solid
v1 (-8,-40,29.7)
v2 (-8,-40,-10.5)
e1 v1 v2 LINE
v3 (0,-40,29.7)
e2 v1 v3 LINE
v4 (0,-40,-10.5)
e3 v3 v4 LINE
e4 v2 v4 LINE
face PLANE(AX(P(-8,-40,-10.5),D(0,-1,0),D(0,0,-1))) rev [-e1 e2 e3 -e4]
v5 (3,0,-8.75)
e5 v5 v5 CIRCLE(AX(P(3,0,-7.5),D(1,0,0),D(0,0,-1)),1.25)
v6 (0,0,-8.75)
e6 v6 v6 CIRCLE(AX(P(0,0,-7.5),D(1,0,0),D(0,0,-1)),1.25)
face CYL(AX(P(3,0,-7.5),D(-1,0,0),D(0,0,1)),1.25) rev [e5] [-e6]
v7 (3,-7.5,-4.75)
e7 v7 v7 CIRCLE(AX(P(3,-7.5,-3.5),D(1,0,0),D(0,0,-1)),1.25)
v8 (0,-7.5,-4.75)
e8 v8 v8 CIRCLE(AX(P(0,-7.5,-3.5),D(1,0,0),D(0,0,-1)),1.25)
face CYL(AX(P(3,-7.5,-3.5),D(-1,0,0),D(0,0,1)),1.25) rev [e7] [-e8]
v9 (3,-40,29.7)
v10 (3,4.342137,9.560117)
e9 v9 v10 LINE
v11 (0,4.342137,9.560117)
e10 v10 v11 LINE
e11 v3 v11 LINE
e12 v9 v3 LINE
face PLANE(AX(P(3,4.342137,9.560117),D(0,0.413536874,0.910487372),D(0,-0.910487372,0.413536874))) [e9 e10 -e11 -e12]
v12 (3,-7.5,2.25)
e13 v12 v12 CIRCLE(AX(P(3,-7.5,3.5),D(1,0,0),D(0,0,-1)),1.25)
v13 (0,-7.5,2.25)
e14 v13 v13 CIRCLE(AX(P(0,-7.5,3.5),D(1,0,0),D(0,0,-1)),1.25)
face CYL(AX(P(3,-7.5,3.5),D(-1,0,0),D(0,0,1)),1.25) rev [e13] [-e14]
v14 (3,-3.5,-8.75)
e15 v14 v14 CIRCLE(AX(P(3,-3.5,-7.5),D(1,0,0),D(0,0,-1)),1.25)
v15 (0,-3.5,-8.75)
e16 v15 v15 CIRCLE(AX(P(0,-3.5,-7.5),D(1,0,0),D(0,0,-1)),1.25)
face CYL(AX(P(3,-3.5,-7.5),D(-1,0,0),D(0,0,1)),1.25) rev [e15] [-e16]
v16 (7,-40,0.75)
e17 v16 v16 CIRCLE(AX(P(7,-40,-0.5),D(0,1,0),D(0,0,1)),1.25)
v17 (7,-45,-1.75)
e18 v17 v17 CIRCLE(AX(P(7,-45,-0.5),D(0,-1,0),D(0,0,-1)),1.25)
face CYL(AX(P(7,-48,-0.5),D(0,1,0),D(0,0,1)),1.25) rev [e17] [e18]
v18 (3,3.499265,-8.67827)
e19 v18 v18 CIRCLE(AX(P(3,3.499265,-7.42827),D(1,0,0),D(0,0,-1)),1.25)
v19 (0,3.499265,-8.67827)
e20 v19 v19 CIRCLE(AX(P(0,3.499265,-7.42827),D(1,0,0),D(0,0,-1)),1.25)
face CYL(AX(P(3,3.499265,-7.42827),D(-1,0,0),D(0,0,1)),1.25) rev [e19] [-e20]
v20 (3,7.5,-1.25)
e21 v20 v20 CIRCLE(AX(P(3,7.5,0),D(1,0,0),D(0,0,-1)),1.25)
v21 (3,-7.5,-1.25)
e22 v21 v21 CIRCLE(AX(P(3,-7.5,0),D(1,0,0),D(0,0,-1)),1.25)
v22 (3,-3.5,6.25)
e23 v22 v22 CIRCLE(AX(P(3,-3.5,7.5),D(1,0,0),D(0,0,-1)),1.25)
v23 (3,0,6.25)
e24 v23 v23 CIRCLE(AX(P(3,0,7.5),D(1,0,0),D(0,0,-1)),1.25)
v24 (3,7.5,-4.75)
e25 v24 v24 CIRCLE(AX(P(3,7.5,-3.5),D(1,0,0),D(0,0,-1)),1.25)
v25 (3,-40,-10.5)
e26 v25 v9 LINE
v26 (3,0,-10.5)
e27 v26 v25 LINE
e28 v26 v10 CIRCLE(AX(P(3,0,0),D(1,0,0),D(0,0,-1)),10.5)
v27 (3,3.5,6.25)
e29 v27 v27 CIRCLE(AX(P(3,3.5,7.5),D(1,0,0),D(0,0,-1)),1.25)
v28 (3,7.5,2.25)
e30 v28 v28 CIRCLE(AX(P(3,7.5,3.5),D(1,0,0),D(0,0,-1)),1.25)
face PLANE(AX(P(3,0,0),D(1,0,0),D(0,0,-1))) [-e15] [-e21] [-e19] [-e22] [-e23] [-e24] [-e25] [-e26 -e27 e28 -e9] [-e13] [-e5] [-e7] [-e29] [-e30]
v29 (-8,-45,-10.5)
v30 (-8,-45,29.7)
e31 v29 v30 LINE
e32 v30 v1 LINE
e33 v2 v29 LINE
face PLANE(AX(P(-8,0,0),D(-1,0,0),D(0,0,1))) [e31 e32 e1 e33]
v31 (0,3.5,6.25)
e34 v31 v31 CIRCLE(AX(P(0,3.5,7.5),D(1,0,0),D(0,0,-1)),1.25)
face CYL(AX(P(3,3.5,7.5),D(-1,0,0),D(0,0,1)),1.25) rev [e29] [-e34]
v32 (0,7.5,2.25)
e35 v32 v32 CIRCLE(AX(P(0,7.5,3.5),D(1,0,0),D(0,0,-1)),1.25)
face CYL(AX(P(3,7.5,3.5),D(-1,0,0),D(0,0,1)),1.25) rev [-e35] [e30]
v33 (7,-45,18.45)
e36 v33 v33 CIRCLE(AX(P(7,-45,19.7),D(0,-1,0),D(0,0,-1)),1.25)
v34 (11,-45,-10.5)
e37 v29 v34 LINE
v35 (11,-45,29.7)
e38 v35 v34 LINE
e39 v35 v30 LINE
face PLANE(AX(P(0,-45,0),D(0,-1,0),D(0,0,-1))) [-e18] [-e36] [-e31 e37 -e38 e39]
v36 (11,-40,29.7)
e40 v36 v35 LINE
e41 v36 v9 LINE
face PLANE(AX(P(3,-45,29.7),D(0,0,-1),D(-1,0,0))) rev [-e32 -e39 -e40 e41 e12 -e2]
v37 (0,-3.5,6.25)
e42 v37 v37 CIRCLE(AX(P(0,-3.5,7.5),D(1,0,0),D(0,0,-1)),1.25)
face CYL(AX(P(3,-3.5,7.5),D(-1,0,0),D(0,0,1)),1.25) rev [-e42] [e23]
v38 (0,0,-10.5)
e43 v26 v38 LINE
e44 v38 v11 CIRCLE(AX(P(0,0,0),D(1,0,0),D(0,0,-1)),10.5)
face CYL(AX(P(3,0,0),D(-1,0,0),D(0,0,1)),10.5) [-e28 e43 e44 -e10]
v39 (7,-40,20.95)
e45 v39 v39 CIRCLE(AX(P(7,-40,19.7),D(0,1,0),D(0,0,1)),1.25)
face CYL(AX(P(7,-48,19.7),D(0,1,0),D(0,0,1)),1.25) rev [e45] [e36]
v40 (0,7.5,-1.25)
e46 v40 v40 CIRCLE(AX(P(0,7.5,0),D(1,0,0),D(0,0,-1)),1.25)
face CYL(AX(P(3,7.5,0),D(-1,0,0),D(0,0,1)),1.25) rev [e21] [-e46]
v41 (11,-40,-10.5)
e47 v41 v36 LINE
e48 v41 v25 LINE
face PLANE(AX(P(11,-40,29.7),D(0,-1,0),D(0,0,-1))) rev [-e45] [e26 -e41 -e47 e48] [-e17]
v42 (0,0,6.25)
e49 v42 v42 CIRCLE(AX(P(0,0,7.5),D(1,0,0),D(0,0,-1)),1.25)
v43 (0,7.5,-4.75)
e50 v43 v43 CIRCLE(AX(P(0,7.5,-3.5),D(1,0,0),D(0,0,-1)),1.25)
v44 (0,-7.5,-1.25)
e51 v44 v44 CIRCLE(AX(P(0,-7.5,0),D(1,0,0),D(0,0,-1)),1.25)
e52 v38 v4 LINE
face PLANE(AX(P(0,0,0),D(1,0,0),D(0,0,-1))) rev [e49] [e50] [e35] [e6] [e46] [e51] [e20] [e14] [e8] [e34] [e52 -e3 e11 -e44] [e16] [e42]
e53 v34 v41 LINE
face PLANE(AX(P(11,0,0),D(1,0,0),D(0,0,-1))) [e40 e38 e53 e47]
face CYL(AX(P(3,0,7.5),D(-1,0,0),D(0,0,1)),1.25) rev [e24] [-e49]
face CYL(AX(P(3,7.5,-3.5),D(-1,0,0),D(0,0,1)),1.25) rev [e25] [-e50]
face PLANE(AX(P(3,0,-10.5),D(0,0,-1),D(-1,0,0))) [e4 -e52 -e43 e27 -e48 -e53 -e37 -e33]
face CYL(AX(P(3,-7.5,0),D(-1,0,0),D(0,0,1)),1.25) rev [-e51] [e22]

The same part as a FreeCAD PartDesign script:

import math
import FreeCAD as App
import Part
import Sketcher
Q = App.Units.Quantity


def add_polygon(sketch, points):
    """Adds a closed chain of lines whose ends are joined by coincident constraints."""
    first, n = sketch.GeometryCount, len(points)
    for a, b in zip(points, points[1:] + points[:1]):
        sketch.addGeometry(Part.LineSegment(App.Vector(*a, 0), App.Vector(*b, 0)), False)
    for i in range(n):
        sketch.addConstraint(Sketcher.Constraint("Coincident", first + i, 2, first + (i + 1) % n, 1))

doc = App.newDocument("Part")
params = doc.addObject("Spreadsheet::Sheet", "Params")
for row, (alias, value) in enumerate([
    ("sketch1_diameter", "2.5 mm"),
    ("sketch1_radius", "10.5 mm"),
    ("sketch1_width", "40 mm"),
    ("sketch1_height", "40.2 mm"),
    ("pad1_length", "3 mm"),
    ("sketch2_width", "3 mm"),
    ("sketch2_height", "40.2 mm"),
    ("pad2_length", "5 mm"),
    ("sketch3_width", "5 mm"),
    ("sketch3_height", "40.2 mm"),
    ("pad3_length", "8 mm"),
    ("sketch4_width", "5 mm"),
    ("sketch4_height", "40.2 mm"),
    ("pad4_length", "8 mm"),
    ("sketch5_diameter", "2.5 mm"),
    ("pocket1_length", "8 mm"),
], start=1):
    params.set(f"A{row}", alias)
    params.set(f"B{row}", "=" + value)
    params.setAlias(f"B{row}", alias)

body = doc.addObject("PartDesign::Body", "Body")

sketch1 = body.newObject("Sketcher::SketchObject", "Sketch")
sketch1.AttachmentSupport = (doc.getObject("YZ_Plane"), [""])
sketch1.MapMode = "FlatFace"
sketch1.addGeometry(Part.LineSegment(App.Vector(-40, -10.5, 0), App.Vector(0, -10.5, 0)), False)
sketch1.addGeometry(Part.ArcOfCircle(Part.Circle(App.Vector(0, 0, 0), App.Vector(0, 0, 1), 10.5), math.radians(-90), math.radians(65.57279)), False)
sketch1.addGeometry(Part.LineSegment(App.Vector(4.342137, 9.560117, 0), App.Vector(-40, 29.7, 0)), False)
sketch1.addGeometry(Part.LineSegment(App.Vector(-40, 29.7, 0), App.Vector(-40, -10.5, 0)), False)
sketch1.addGeometry(Part.Circle(App.Vector(7.5, -3.5, 0), App.Vector(0, 0, 1), 1.25), False)
sketch1.addGeometry(Part.Circle(App.Vector(-7.5, 3.5, 0), App.Vector(0, 0, 1), 1.25), False)
sketch1.addGeometry(Part.Circle(App.Vector(-3.5, 7.5, 0), App.Vector(0, 0, 1), 1.25), False)
sketch1.addGeometry(Part.Circle(App.Vector(-7.5, 0, 0), App.Vector(0, 0, 1), 1.25), False)
sketch1.addGeometry(Part.Circle(App.Vector(-7.5, -3.5, 0), App.Vector(0, 0, 1), 1.25), False)
sketch1.addGeometry(Part.Circle(App.Vector(-3.5, -7.5, 0), App.Vector(0, 0, 1), 1.25), False)
sketch1.addGeometry(Part.Circle(App.Vector(0, 7.5, 0), App.Vector(0, 0, 1), 1.25), False)
sketch1.addGeometry(Part.Circle(App.Vector(3.5, 7.5, 0), App.Vector(0, 0, 1), 1.25), False)
sketch1.addGeometry(Part.Circle(App.Vector(7.5, 3.5, 0), App.Vector(0, 0, 1), 1.25), False)
sketch1.addGeometry(Part.Circle(App.Vector(0, -7.5, 0), App.Vector(0, 0, 1), 1.25), False)
sketch1.addGeometry(Part.Circle(App.Vector(3.499265, -7.42827, 0), App.Vector(0, 0, 1), 1.25), False)
sketch1.addGeometry(Part.Circle(App.Vector(7.5, 0, 0), App.Vector(0, 0, 1), 1.25), False)
sketch1.addConstraint(Sketcher.Constraint("Tangent", 0, 2, 1, 1))
sketch1.addConstraint(Sketcher.Constraint("Tangent", 1, 2, 2, 1))
sketch1.addConstraint(Sketcher.Constraint("Coincident", 2, 2, 3, 1))
sketch1.addConstraint(Sketcher.Constraint("Coincident", 3, 2, 0, 1))
sketch1.addConstraint(Sketcher.Constraint("Horizontal", 0))
sketch1.addConstraint(Sketcher.Constraint("Vertical", 3))
sketch1.addConstraint(Sketcher.Constraint("Coincident", 1, 3, -1, 1))
sketch1.addConstraint(Sketcher.Constraint("Equal", 4, 5))
sketch1.addConstraint(Sketcher.Constraint("Equal", 5, 6))
sketch1.addConstraint(Sketcher.Constraint("Equal", 6, 7))
sketch1.addConstraint(Sketcher.Constraint("Equal", 7, 8))
sketch1.addConstraint(Sketcher.Constraint("Equal", 8, 9))
sketch1.addConstraint(Sketcher.Constraint("Equal", 9, 10))
sketch1.addConstraint(Sketcher.Constraint("Equal", 10, 11))
sketch1.addConstraint(Sketcher.Constraint("Equal", 11, 12))
sketch1.addConstraint(Sketcher.Constraint("Equal", 12, 13))
sketch1.addConstraint(Sketcher.Constraint("Equal", 13, 14))
sketch1.addConstraint(Sketcher.Constraint("Equal", 14, 15))
sketch1.addConstraint(Sketcher.Constraint("Symmetric", 4, 3, 5, 3, -1, 1))
sketch1.addConstraint(Sketcher.Constraint("Symmetric", 9, 3, 11, 3, -1, 1))
sketch1.addConstraint(Sketcher.Constraint("Symmetric", 8, 3, 12, 3, -1, 1))
sketch1.addConstraint(Sketcher.Constraint("Symmetric", 10, 3, 13, 3, -1, 1))
sketch1.addConstraint(Sketcher.Constraint("Symmetric", 7, 3, 15, 3, -1, 1))
sketch1.addConstraint(Sketcher.Constraint("Symmetric", 4, 3, 8, 3, -2))
sketch1.addConstraint(Sketcher.Constraint("Symmetric", 6, 3, 11, 3, -2))
sketch1.addConstraint(Sketcher.Constraint("PointOnObject", 7, 3, -1))
sketch1.addConstraint(Sketcher.Constraint("PointOnObject", 10, 3, -2))
sketch1.addConstraint(Sketcher.Constraint("Horizontal", 6, 3, 10, 3))
sketch1.addConstraint(Sketcher.Constraint("Vertical", 5, 3, 7, 3))
sketch1.addConstraint(Sketcher.Constraint("Diameter", 4, Q("2.5 mm")))
sketch1.addConstraint(Sketcher.Constraint("Radius", 1, Q("10.5 mm")))
sketch1.addConstraint(Sketcher.Constraint("DistanceX", 0, 1, 0, 2, Q("40 mm")))
sketch1.addConstraint(Sketcher.Constraint("DistanceY", 3, 2, 3, 1, Q("40.2 mm")))
sketch1.addConstraint(Sketcher.Constraint("DistanceX", 5, 3, 4, 3, Q("15 mm")))
sketch1.addConstraint(Sketcher.Constraint("DistanceY", 4, 3, 5, 3, Q("7 mm")))
sketch1.addConstraint(Sketcher.Constraint("DistanceX", 5, 3, 6, 3, Q("4 mm")))
sketch1.addConstraint(Sketcher.Constraint("DistanceY", 5, 3, 6, 3, Q("4 mm")))
sketch1.addConstraint(Sketcher.Constraint("DistanceY", 14, 3, -1, 1, Q("7.42827 mm")))
sketch1.addConstraint(Sketcher.Constraint("DistanceX", -1, 1, 14, 3, Q("3.499265 mm")))
sketch1.setExpression("Constraints[29]", "Params.sketch1_diameter")
sketch1.setExpression("Constraints[30]", "Params.sketch1_radius")
sketch1.setExpression("Constraints[31]", "Params.sketch1_width")
sketch1.setExpression("Constraints[32]", "Params.sketch1_height")
pad1 = body.newObject("PartDesign::Pad", "Pad")
pad1.Profile = sketch1
pad1.setExpression("Length", "Params.pad1_length")

sketch2 = body.newObject("Sketcher::SketchObject", "Sketch001")
sketch2.AttachmentSupport = (doc.getObject("XZ_Plane"), [""])
sketch2.MapMode = "FlatFace"
sketch2.AttachmentOffset = App.Placement(App.Vector(0, 0, 40), App.Rotation())
add_polygon(sketch2, [(3, -10.5), (3, 29.7), (0, 29.7), (0, -10.5)])
sketch2.addConstraint(Sketcher.Constraint("Vertical", 0))
sketch2.addConstraint(Sketcher.Constraint("Horizontal", 1))
sketch2.addConstraint(Sketcher.Constraint("Vertical", 2))
sketch2.addConstraint(Sketcher.Constraint("Horizontal", 3))
sketch2.addConstraint(Sketcher.Constraint("PointOnObject", 1, 2, -2))
sketch2.addConstraint(Sketcher.Constraint("DistanceX", 1, 2, 1, 1, Q("3 mm")))
sketch2.addConstraint(Sketcher.Constraint("DistanceY", 0, 1, 0, 2, Q("40.2 mm")))
sketch2.addConstraint(Sketcher.Constraint("DistanceY", -1, 1, 0, 2, Q("29.7 mm")))
sketch2.setExpression("Constraints[9]", "Params.sketch2_width")
sketch2.setExpression("Constraints[10]", "Params.sketch2_height")
pad2 = body.newObject("PartDesign::Pad", "Pad001")
pad2.Profile = sketch2
pad2.setExpression("Length", "Params.pad2_length")

sketch3 = body.newObject("Sketcher::SketchObject", "Sketch002")
sketch3.AttachmentSupport = (doc.getObject("YZ_Plane"), [""])
sketch3.MapMode = "FlatFace"
add_polygon(sketch3, [(-40, -10.5), (-45, -10.5), (-45, 29.7), (-40, 29.7)])
sketch3.addConstraint(Sketcher.Constraint("Horizontal", 0))
sketch3.addConstraint(Sketcher.Constraint("Vertical", 1))
sketch3.addConstraint(Sketcher.Constraint("Horizontal", 2))
sketch3.addConstraint(Sketcher.Constraint("Vertical", 3))
sketch3.addConstraint(Sketcher.Constraint("DistanceX", 0, 2, 0, 1, Q("5 mm")))
sketch3.addConstraint(Sketcher.Constraint("DistanceY", 1, 1, 1, 2, Q("40.2 mm")))
sketch3.addConstraint(Sketcher.Constraint("DistanceX", 0, 2, -1, 1, Q("45 mm")))
sketch3.addConstraint(Sketcher.Constraint("DistanceY", 0, 2, -1, 1, Q("10.5 mm")))
sketch3.setExpression("Constraints[8]", "Params.sketch3_width")
sketch3.setExpression("Constraints[9]", "Params.sketch3_height")
pad3 = body.newObject("PartDesign::Pad", "Pad002")
pad3.Profile = sketch3
pad3.setExpression("Length", "Params.pad3_length")
pad3.Reversed = True
body2 = doc.addObject("PartDesign::Body", "Body001")
doc.recompute()

mirroring = doc.addObject("Part::Mirroring", "Mirroring")
mirroring.Source = body
mirroring.Base = App.Vector(3, 0, 0)
mirroring.Normal = App.Vector(1, 0, 0)
body2.BaseFeature = mirroring
doc.recompute()
body3 = doc.addObject("PartDesign::Body", "Body002")
doc.recompute()

mirroring2 = doc.addObject("Part::Mirroring", "Mirroring001")
mirroring2.Source = body2
mirroring2.Base = App.Vector(3, -22.468969, 5.630206)
mirroring2.Normal = App.Vector(-1, 0, 0)
body3.BaseFeature = mirroring2
doc.recompute()

sketch4 = body3.newObject("Sketcher::SketchObject", "Sketch003")
sketch4.AttachmentSupport = (doc.getObject("YZ_Plane002"), [""])
sketch4.MapMode = "FlatFace"
sketch4.AttachmentOffset = App.Placement(App.Vector(0, 0, 3), App.Rotation())
add_polygon(sketch4, [(-40, 29.7), (-45, 29.7), (-45, -10.5), (-40, -10.5)])
sketch4.addConstraint(Sketcher.Constraint("Horizontal", 0))
sketch4.addConstraint(Sketcher.Constraint("Vertical", 1))
sketch4.addConstraint(Sketcher.Constraint("Horizontal", 2))
sketch4.addConstraint(Sketcher.Constraint("Vertical", 3))
sketch4.addConstraint(Sketcher.Constraint("DistanceX", 0, 2, 0, 1, Q("5 mm")))
sketch4.addConstraint(Sketcher.Constraint("DistanceY", 1, 2, 1, 1, Q("40.2 mm")))
sketch4.addConstraint(Sketcher.Constraint("DistanceX", 0, 2, -1, 1, Q("45 mm")))
sketch4.addConstraint(Sketcher.Constraint("DistanceY", -1, 1, 0, 2, Q("29.7 mm")))
sketch4.setExpression("Constraints[8]", "Params.sketch4_width")
sketch4.setExpression("Constraints[9]", "Params.sketch4_height")
pad4 = body3.newObject("PartDesign::Pad", "Pad003")
pad4.Profile = sketch4
pad4.setExpression("Length", "Params.pad4_length")

sketch5 = body3.newObject("Sketcher::SketchObject", "Sketch004")
sketch5.AttachmentSupport = (doc.getObject("XZ_Plane002"), [""])
sketch5.MapMode = "FlatFace"
sketch5.AttachmentOffset = App.Placement(App.Vector(0, 0, 40), App.Rotation())
sketch5.addGeometry(Part.Circle(App.Vector(7, -0.5, 0), App.Vector(0, 0, 1), 1.25), False)
sketch5.addGeometry(Part.Circle(App.Vector(7, 19.7, 0), App.Vector(0, 0, 1), 1.25), False)
sketch5.addConstraint(Sketcher.Constraint("Equal", 0, 1))
sketch5.addConstraint(Sketcher.Constraint("Vertical", 0, 3, 1, 3))
sketch5.addConstraint(Sketcher.Constraint("Diameter", 0, Q("2.5 mm")))
sketch5.addConstraint(Sketcher.Constraint("DistanceX", -1, 1, 0, 3, Q("7 mm")))
sketch5.addConstraint(Sketcher.Constraint("DistanceY", 0, 3, -1, 1, Q("0.5 mm")))
sketch5.addConstraint(Sketcher.Constraint("DistanceY", -1, 1, 1, 3, Q("19.7 mm")))
sketch5.setExpression("Constraints[2]", "Params.sketch5_diameter")
pocket1 = body3.newObject("PartDesign::Pocket", "Pocket")
pocket1.Profile = sketch5
pocket1.setExpression("Length", "Params.pocket1_length")
pocket1.Reversed = True
body.Visibility = False
body2.Visibility = False
mirroring.Visibility = False
mirroring2.Visibility = False

doc.recompute()
